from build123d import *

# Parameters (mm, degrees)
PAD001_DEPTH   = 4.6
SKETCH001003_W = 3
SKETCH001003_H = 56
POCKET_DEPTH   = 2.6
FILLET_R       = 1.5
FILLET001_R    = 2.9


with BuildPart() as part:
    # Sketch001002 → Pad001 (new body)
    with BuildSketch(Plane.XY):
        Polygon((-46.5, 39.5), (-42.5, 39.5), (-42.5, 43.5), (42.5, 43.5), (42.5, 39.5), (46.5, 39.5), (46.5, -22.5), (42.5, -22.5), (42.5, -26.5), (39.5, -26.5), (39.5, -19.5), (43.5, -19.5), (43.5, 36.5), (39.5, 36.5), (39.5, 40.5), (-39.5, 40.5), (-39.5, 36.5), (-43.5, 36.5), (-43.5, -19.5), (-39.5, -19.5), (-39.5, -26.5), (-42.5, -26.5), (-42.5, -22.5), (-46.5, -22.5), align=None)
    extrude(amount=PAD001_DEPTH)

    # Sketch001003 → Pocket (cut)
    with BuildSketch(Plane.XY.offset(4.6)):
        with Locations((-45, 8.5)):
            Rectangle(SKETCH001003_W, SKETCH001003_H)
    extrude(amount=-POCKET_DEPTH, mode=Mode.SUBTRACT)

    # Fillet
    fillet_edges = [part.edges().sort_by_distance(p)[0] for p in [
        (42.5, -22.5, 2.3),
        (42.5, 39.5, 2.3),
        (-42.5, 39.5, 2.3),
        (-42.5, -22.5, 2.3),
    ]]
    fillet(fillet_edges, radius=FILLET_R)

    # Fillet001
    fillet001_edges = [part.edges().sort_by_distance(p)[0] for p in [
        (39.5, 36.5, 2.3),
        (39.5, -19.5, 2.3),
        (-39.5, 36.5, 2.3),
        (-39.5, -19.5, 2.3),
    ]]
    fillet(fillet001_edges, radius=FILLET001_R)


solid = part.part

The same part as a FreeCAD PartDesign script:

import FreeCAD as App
import Part
import Sketcher
from FreeCAD import Vector
Q = App.Units.Quantity


def edges_at(feature, points):
    """Names of the edges that pass closest to the given points."""
    edges = feature.Shape.Edges
    near = lambda p: min(range(len(edges)), key=lambda i: edges[i].distToShape(Part.Vertex(*p))[0])
    return sorted({f"Edge{near(p) + 1}" for p in points})


def add_polygon(sketch, points):
    """Adds a closed chain of lines whose ends are joined by coincident constraints."""
    first, n = sketch.GeometryCount, len(points)
    for a, b in zip(points, points[1:] + points[:1]):
        sketch.addGeometry(Part.LineSegment(App.Vector(*a, 0), App.Vector(*b, 0)), False)
    for i in range(n):
        sketch.addConstraint(Sketcher.Constraint("Coincident", first + i, 2, first + (i + 1) % n, 1))

doc = App.newDocument("Part")
body = doc.addObject("PartDesign::Body", "Body")

# Sketch on XY plane
sketch1 = doc.addObject("Sketcher::SketchObject", "Sketch")
body.addObject(sketch1)
sketch1.AttachmentSupport = (doc.XY_Plane, [""])
sketch1.MapMode = "FlatFace"
add_polygon(sketch1, [(-42.5, 39.5), (-46.5, 39.5), (-46.5, -22.5), (-42.5, -22.5), (-42.5, -26.5), (-39.5, -26.5), (-39.5, -19.5), (-43.5, -19.5), (-43.5, 36.5), (-39.5, 36.5), (-39.5, 40.5), (39.5, 40.5), (39.5, 36.5), (43.5, 36.5), (43.5, -19.5), (39.5, -19.5), (39.5, -26.5), (42.5, -26.5), (42.5, -22.5), (46.5, -22.5), (46.5, 39.5), (42.5, 39.5), (42.5, 43.5), (-42.5, 43.5)])  # lines 0-23
sketch1.addConstraint([
    Sketcher.Constraint("Horizontal", 0),
    Sketcher.Constraint("Vertical", 1),
    Sketcher.Constraint("Horizontal", 2),
    Sketcher.Constraint("Vertical", 3),
    Sketcher.Constraint("Horizontal", 4),
    Sketcher.Constraint("Vertical", 5),
    Sketcher.Constraint("Horizontal", 6),
    Sketcher.Constraint("Vertical", 7),
    Sketcher.Constraint("Horizontal", 8),
    Sketcher.Constraint("Vertical", 9),
    Sketcher.Constraint("Horizontal", 10),
    Sketcher.Constraint("Vertical", 11),
    Sketcher.Constraint("Horizontal", 12),
    Sketcher.Constraint("Vertical", 13),
    Sketcher.Constraint("Horizontal", 14),
    Sketcher.Constraint("Vertical", 15),
    Sketcher.Constraint("Horizontal", 16),
    Sketcher.Constraint("Vertical", 17),
    Sketcher.Constraint("Horizontal", 18),
    Sketcher.Constraint("Vertical", 19),
    Sketcher.Constraint("Horizontal", 20),
    Sketcher.Constraint("Vertical", 21),
    Sketcher.Constraint("Horizontal", 22),
    Sketcher.Constraint("Vertical", 23),
    Sketcher.Constraint("Symmetric", 8, 2, 11, 2, -2),
    Sketcher.Constraint("Symmetric", 6, 2, 13, 2, -2),
    Sketcher.Constraint("Symmetric", 4, 2, 15, 2, -2),
    Sketcher.Constraint("Symmetric", 2, 2, 17, 2, -2),
    Sketcher.Constraint("Symmetric", 0, 2, 19, 2, -2),
    Sketcher.Constraint("Vertical", 5, 2, 8, 2),
    Sketcher.Constraint("Vertical", 17, 2, 20, 2),
    Sketcher.Constraint("Vertical", 3, 2, 22, 2),
    Sketcher.Constraint("Equal", 2, 6),
    Sketcher.Constraint("Equal", 20, 3),
    Sketcher.Constraint("Equal", 3, 9),
    Sketcher.Constraint("Equal", 17, 21),
    Sketcher.Constraint("DistanceX", 0, 2, 0, 1, Q("4 mm")),
    Sketcher.Constraint("DistanceX", 4, 1, 4, 2, Q("3 mm")),
    Sketcher.Constraint("DistanceX", 10, 1, 10, 2, Q("79 mm")),
    Sketcher.Constraint("DistanceY", 1, 2, 1, 1, Q("62 mm")),
    Sketcher.Constraint("DistanceY", 5, 1, 5, 2, Q("7 mm")),
    Sketcher.Constraint("DistanceY", 7, 1, 7, 2, Q("56 mm")),
    Sketcher.Constraint("DistanceY", -1, 1, 0, 2, Q("39.5 mm")),
])
pad1 = doc.addObject("PartDesign::Pad", "Pad")
body.addObject(pad1)
pad1.Profile = sketch1
pad1.Length = 4.6

# Sketch on XY plane
sketch2 = doc.addObject("Sketcher::SketchObject", "Sketch001")
body.addObject(sketch2)
sketch2.AttachmentSupport = (doc.XY_Plane, [""])
sketch2.MapMode = "FlatFace"
sketch2.AttachmentOffset = App.Placement(Vector(0, 0, 4.6), App.Rotation())
add_polygon(sketch2, [(-46.5, 36.5), (-46.5, -19.5), (-43.5, -19.5), (-43.5, 36.5)])  # lines 0-3
sketch2.addConstraint([
    Sketcher.Constraint("Vertical", 0),
    Sketcher.Constraint("Horizontal", 1),
    Sketcher.Constraint("Vertical", 2),
    Sketcher.Constraint("Horizontal", 3),
    Sketcher.Constraint("DistanceX", 1, 1, 1, 2, Q("3 mm")),
    Sketcher.Constraint("DistanceY", 0, 2, 0, 1, Q("56 mm")),
    Sketcher.Constraint("DistanceX", 0, 2, -1, 1, Q("46.5 mm")),
    Sketcher.Constraint("DistanceY", 0, 2, -1, 1, Q("19.5 mm")),
])
pocket1 = doc.addObject("PartDesign::Pocket", "Pocket")
body.addObject(pocket1)
pocket1.Profile = sketch2
pocket1.Length = 2.6
doc.recompute()

fillet = doc.addObject("PartDesign::Fillet", "Fillet")
body.addObject(fillet)
fillet.Base = (pocket1, edges_at(pocket1, [
    (42.5, -22.5, 2.3),
    (42.5, 39.5, 2.3),
    (-42.5, 39.5, 2.3),
    (-42.5, -22.5, 2.3),
]))
fillet.Radius = 1.5
doc.recompute()

fillet2 = doc.addObject("PartDesign::Fillet", "Fillet001")
body.addObject(fillet2)
fillet2.Base = (fillet, edges_at(fillet, [
    (39.5, 36.5, 2.3),
    (39.5, -19.5, 2.3),
    (-39.5, 36.5, 2.3),
    (-39.5, -19.5, 2.3),
]))
fillet2.Radius = 2.9

doc.recompute()
